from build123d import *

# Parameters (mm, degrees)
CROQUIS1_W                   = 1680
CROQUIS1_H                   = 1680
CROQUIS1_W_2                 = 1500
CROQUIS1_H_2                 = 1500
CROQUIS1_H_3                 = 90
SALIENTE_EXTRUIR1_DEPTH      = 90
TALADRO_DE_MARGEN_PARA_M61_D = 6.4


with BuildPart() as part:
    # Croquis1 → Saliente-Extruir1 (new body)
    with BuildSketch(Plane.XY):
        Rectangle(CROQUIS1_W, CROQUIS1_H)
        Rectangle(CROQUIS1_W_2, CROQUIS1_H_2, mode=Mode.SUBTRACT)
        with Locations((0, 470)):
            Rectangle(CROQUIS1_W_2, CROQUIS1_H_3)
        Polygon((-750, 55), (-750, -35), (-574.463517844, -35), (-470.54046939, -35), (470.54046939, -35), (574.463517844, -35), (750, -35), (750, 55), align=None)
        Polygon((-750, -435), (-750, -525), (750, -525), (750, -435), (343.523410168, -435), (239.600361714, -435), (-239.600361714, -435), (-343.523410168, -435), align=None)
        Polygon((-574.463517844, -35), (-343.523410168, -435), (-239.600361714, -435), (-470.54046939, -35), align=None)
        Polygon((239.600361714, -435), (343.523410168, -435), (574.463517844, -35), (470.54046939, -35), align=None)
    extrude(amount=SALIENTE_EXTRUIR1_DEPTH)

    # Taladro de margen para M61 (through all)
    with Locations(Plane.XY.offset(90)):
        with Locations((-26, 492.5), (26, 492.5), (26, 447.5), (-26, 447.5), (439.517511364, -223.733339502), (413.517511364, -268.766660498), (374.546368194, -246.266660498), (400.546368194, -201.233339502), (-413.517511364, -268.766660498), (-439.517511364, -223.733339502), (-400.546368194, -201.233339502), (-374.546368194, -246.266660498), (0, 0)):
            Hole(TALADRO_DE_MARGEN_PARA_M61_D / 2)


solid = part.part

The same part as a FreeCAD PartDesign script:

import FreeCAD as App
import Part
import Sketcher
Q = App.Units.Quantity


def add_polygon(sketch, points):
    """Adds a closed chain of lines whose ends are joined by coincident constraints."""
    first, n = sketch.GeometryCount, len(points)
    for a, b in zip(points, points[1:] + points[:1]):
        sketch.addGeometry(Part.LineSegment(App.Vector(*a, 0), App.Vector(*b, 0)), False)
    for i in range(n):
        sketch.addConstraint(Sketcher.Constraint("Coincident", first + i, 2, first + (i + 1) % n, 1))

doc = App.newDocument("Part")
body = doc.addObject("PartDesign::Body", "Body")

# Sketch on XY plane
sketch1 = doc.addObject("Sketcher::SketchObject", "Sketch")
body.addObject(sketch1)
sketch1.AttachmentSupport = (doc.XY_Plane, [""])
sketch1.MapMode = "FlatFace"
add_polygon(sketch1, [(-840, 840), (-840, -840), (840, -840), (840, 840)])  # lines 0-3
add_polygon(sketch1, [(750, -750), (-750, -750), (-750, -525), (750, -525)])  # lines 4-7
add_polygon(sketch1, [(-750, -435), (-750, -35), (-574.463518, -35), (-343.52341, -435)])  # lines 8-11
add_polygon(sketch1, [(-470.540469, -35), (470.540469, -35), (239.600362, -435), (-239.600362, -435)])  # lines 12-15
add_polygon(sketch1, [(574.463518, -35), (750, -35), (750, -435), (343.52341, -435)])  # lines 16-19
add_polygon(sketch1, [(-750, 55), (-750, 425), (750, 425), (750, 55)])  # lines 20-23
add_polygon(sketch1, [(750, 750), (750, 515), (-750, 515), (-750, 750)])  # lines 24-27
sketch1.addConstraint([
    Sketcher.Constraint("Vertical", 0),
    Sketcher.Constraint("Horizontal", 1),
    Sketcher.Constraint("Vertical", 2),
    Sketcher.Constraint("Horizontal", 3),
    Sketcher.Constraint("Horizontal", 4),
    Sketcher.Constraint("Vertical", 5),
    Sketcher.Constraint("Horizontal", 6),
    Sketcher.Constraint("Vertical", 7),
    Sketcher.Constraint("Vertical", 8),
    Sketcher.Constraint("Horizontal", 9),
    Sketcher.Constraint("Horizontal", 11),
    Sketcher.Constraint("Horizontal", 12),
    Sketcher.Constraint("Horizontal", 14),
    Sketcher.Constraint("Horizontal", 16),
    Sketcher.Constraint("Vertical", 17),
    Sketcher.Constraint("Horizontal", 18),
    Sketcher.Constraint("Vertical", 20),
    Sketcher.Constraint("Horizontal", 21),
    Sketcher.Constraint("Vertical", 22),
    Sketcher.Constraint("Horizontal", 23),
    Sketcher.Constraint("Vertical", 24),
    Sketcher.Constraint("Horizontal", 25),
    Sketcher.Constraint("Vertical", 26),
    Sketcher.Constraint("Horizontal", 27),
    Sketcher.Constraint("Symmetric", 0, 2, 2, 2, -1, 1),
    Sketcher.Constraint("Symmetric", 7, 2, 26, 2, -1, 1),
    Sketcher.Constraint("Symmetric", 8, 2, 16, 2, -2),
    Sketcher.Constraint("Symmetric", 10, 2, 18, 2, -2),
    Sketcher.Constraint("Parallel", 10, 15),
    Sketcher.Constraint("Parallel", 13, 19),
    Sketcher.Constraint("Horizontal", 9, 2, 12, 2),
    Sketcher.Constraint("Horizontal", 11, 2, 13, 2),
    Sketcher.Constraint("Vertical", 5, 2, 8, 2),
    Sketcher.Constraint("Vertical", 7, 2, 16, 2),
    Sketcher.Constraint("Vertical", 11, 2, 20, 2),
    Sketcher.Constraint("Vertical", 17, 2, 21, 2),
    Sketcher.Constraint("Vertical", 22, 2, 24, 2),
    Sketcher.Constraint("Equal", 9, 16),
    Sketcher.Constraint("Equal", 3, 0),
    Sketcher.Constraint("DistanceX", 1, 1, 1, 2, Q("1680 mm")),
    Sketcher.Constraint("DistanceX", 4, 2, 4, 1, Q("1500 mm")),
    Sketcher.Constraint("DistanceY", 5, 1, 5, 2, Q("225 mm")),
    Sketcher.Constraint("DistanceY", 8, 1, 8, 2, Q("400 mm")),
    Sketcher.Constraint("DistanceY", 20, 1, 20, 2, Q("370 mm")),
    Sketcher.Constraint("DistanceY", 24, 2, 24, 1, Q("235 mm")),
    Sketcher.Constraint("Angle", 10, Q("-60 deg")),
    Sketcher.Constraint("DistanceY", 4, 2, -1, 1, Q("750 mm")),
    Sketcher.Constraint("DistanceY", 8, 2, -1, 1, Q("35 mm")),
    Sketcher.Constraint("DistanceY", -1, 1, 20, 2, Q("425 mm")),
    Sketcher.Constraint("DistanceX", 11, 2, 11, 1, Q("406.47659 mm")),
    Sketcher.Constraint("DistanceX", 12, 1, 12, 2, Q("941.080939 mm")),
    Sketcher.Constraint("DistanceX", -1, 1, 12, 2, Q("470.540469 mm")),
])
pad1 = doc.addObject("PartDesign::Pad", "Pad")
body.addObject(pad1)
pad1.Profile = sketch1
pad1.Length = 90

# Sketch on XY plane
sketch2 = doc.addObject("Sketcher::SketchObject", "Sketch001")
body.addObject(sketch2)
sketch2.AttachmentSupport = (doc.XY_Plane, [""])
sketch2.MapMode = "FlatFace"
sketch2.AttachmentOffset = App.Placement(App.Vector(0, 0, 90), App.Rotation())
sketch2.addGeometry([
    Part.Circle(App.Vector(-26, 492.5, 0), App.Vector(0, 0, 1), 3.2),  # 0
    Part.Circle(App.Vector(26, 492.5, 0), App.Vector(0, 0, 1), 3.2),  # 1
    Part.Circle(App.Vector(26, 447.5, 0), App.Vector(0, 0, 1), 3.2),  # 2
    Part.Circle(App.Vector(-26, 447.5, 0), App.Vector(0, 0, 1), 3.2),  # 3
    Part.Circle(App.Vector(439.517511, -223.73334, 0), App.Vector(0, 0, 1), 3.2),  # 4
    Part.Circle(App.Vector(413.517511, -268.76666, 0), App.Vector(0, 0, 1), 3.2),  # 5
    Part.Circle(App.Vector(374.546368, -246.26666, 0), App.Vector(0, 0, 1), 3.2),  # 6
    Part.Circle(App.Vector(400.546368, -201.23334, 0), App.Vector(0, 0, 1), 3.2),  # 7
    Part.Circle(App.Vector(-413.517511, -268.76666, 0), App.Vector(0, 0, 1), 3.2),  # 8
    Part.Circle(App.Vector(-439.517511, -223.73334, 0), App.Vector(0, 0, 1), 3.2),  # 9
    Part.Circle(App.Vector(-400.546368, -201.23334, 0), App.Vector(0, 0, 1), 3.2),  # 10
    Part.Circle(App.Vector(-374.546368, -246.26666, 0), App.Vector(0, 0, 1), 3.2),  # 11
    Part.Circle(App.Vector(0, 0, 0), App.Vector(0, 0, 1), 3.2),  # 12
], False)
sketch2.addConstraint([
    Sketcher.Constraint("Coincident", 12, 3, -1, 1),
    Sketcher.Constraint("Equal", 0, 1),
    Sketcher.Constraint("Equal", 1, 2),
    Sketcher.Constraint("Equal", 2, 3),
    Sketcher.Constraint("Equal", 3, 4),
    Sketcher.Constraint("Equal", 4, 5),
    Sketcher.Constraint("Equal", 5, 6),
    Sketcher.Constraint("Equal", 6, 7),
    Sketcher.Constraint("Equal", 7, 8),
    Sketcher.Constraint("Equal", 8, 9),
    Sketcher.Constraint("Equal", 9, 10),
    Sketcher.Constraint("Equal", 10, 11),
    Sketcher.Constraint("Equal", 11, 12),
    Sketcher.Constraint("Symmetric", 0, 3, 1, 3, -2),
    Sketcher.Constraint("Symmetric", 2, 3, 3, 3, -2),
    Sketcher.Constraint("Symmetric", 5, 3, 8, 3, -2),
    Sketcher.Constraint("Symmetric", 4, 3, 9, 3, -2),
    Sketcher.Constraint("Symmetric", 7, 3, 10, 3, -2),
    Sketcher.Constraint("Symmetric", 6, 3, 11, 3, -2),
    Sketcher.Constraint("Vertical", 1, 3, 2, 3),
    Sketcher.Constraint("Diameter", 0, Q("6.4 mm")),
    Sketcher.Constraint("DistanceX", 0, 3, -1, 1, Q("26 mm")),
    Sketcher.Constraint("DistanceY", 2, 3, 1, 3, Q("45 mm")),
    Sketcher.Constraint("DistanceX", 5, 3, 4, 3, Q("26 mm")),
    Sketcher.Constraint("DistanceX", 6, 3, 7, 3, Q("26 mm")),
    Sketcher.Constraint("DistanceY", -1, 1, 0, 3, Q("492.5 mm")),
    Sketcher.Constraint("DistanceY", 5, 3, 6, 3, Q("22.5 mm")),
    Sketcher.Constraint("DistanceY", 4, 3, 7, 3, Q("22.5 mm")),
    Sketcher.Constraint("DistanceX", -1, 1, 4, 3, Q("439.517511 mm")),
    Sketcher.Constraint("DistanceY", 4, 3, -1, 1, Q("223.73334 mm")),
    Sketcher.Constraint("DistanceY", 5, 3, -1, 1, Q("268.76666 mm")),
    Sketcher.Constraint("DistanceX", -1, 1, 6, 3, Q("374.546368 mm")),
])
doc.recompute()
hole = doc.addObject("PartDesign::Hole", "Hole")
body.addObject(hole)
hole.Profile = sketch2
hole.ThreadType = "None"
hole.Diameter = 6.4
hole.DepthType = "ThroughAll"

doc.recompute()
